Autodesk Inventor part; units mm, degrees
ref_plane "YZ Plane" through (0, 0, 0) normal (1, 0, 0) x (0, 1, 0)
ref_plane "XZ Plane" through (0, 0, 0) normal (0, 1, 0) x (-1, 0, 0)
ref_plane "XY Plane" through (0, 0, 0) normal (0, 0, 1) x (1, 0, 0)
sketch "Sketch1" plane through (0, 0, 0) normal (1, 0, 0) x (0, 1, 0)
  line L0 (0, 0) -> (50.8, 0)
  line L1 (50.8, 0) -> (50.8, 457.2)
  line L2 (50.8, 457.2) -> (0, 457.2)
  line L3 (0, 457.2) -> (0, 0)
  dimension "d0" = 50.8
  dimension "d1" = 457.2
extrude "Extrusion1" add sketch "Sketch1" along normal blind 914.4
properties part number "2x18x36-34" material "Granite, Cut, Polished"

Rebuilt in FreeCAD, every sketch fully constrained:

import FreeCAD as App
import Part
import Sketcher
from FreeCAD import Vector
Q = App.Units.Quantity

doc = App.newDocument("Part")
body = doc.addObject("PartDesign::Body", "Body")

# Sketch on YZ plane
sketch1 = body.newObject("Sketcher::SketchObject", "Sketch")
sketch1.AttachmentSupport = (doc.getObject("YZ_Plane"), [""])
sketch1.MapMode = "FlatFace"
sketch1.addGeometry([
    Part.LineSegment(Vector(0, 457, 0), Vector(0, 0, 0)),
    Part.LineSegment(Vector(0, 0, 0), Vector(51, 0, 0)),
    Part.LineSegment(Vector(51, 0, 0), Vector(51, 457, 0)),
    Part.LineSegment(Vector(51, 457, 0), Vector(0, 457, 0)),
], False)
sketch1.addConstraint([
    Sketcher.Constraint("Coincident", 0, 2, 1, 1),
    Sketcher.Constraint("Coincident", 1, 2, 2, 1),
    Sketcher.Constraint("Coincident", 2, 2, 3, 1),
    Sketcher.Constraint("Coincident", 3, 2, 0, 1),
    Sketcher.Constraint("Vertical", 0),
    Sketcher.Constraint("Horizontal", 1),
    Sketcher.Constraint("Vertical", 2),
    Sketcher.Constraint("Horizontal", 3),
    Sketcher.Constraint("Coincident", 0, 2, -1, 1),
    Sketcher.Constraint("DistanceX", 1, 1, 1, 2, Q("2 in")),
    Sketcher.Constraint("DistanceY", 0, 2, 0, 1, Q("18 in")),
])
pad1 = body.newObject("PartDesign::Pad", "Pad")
pad1.Profile = sketch1
pad1.Length = Q("36 in")

doc.recompute()
